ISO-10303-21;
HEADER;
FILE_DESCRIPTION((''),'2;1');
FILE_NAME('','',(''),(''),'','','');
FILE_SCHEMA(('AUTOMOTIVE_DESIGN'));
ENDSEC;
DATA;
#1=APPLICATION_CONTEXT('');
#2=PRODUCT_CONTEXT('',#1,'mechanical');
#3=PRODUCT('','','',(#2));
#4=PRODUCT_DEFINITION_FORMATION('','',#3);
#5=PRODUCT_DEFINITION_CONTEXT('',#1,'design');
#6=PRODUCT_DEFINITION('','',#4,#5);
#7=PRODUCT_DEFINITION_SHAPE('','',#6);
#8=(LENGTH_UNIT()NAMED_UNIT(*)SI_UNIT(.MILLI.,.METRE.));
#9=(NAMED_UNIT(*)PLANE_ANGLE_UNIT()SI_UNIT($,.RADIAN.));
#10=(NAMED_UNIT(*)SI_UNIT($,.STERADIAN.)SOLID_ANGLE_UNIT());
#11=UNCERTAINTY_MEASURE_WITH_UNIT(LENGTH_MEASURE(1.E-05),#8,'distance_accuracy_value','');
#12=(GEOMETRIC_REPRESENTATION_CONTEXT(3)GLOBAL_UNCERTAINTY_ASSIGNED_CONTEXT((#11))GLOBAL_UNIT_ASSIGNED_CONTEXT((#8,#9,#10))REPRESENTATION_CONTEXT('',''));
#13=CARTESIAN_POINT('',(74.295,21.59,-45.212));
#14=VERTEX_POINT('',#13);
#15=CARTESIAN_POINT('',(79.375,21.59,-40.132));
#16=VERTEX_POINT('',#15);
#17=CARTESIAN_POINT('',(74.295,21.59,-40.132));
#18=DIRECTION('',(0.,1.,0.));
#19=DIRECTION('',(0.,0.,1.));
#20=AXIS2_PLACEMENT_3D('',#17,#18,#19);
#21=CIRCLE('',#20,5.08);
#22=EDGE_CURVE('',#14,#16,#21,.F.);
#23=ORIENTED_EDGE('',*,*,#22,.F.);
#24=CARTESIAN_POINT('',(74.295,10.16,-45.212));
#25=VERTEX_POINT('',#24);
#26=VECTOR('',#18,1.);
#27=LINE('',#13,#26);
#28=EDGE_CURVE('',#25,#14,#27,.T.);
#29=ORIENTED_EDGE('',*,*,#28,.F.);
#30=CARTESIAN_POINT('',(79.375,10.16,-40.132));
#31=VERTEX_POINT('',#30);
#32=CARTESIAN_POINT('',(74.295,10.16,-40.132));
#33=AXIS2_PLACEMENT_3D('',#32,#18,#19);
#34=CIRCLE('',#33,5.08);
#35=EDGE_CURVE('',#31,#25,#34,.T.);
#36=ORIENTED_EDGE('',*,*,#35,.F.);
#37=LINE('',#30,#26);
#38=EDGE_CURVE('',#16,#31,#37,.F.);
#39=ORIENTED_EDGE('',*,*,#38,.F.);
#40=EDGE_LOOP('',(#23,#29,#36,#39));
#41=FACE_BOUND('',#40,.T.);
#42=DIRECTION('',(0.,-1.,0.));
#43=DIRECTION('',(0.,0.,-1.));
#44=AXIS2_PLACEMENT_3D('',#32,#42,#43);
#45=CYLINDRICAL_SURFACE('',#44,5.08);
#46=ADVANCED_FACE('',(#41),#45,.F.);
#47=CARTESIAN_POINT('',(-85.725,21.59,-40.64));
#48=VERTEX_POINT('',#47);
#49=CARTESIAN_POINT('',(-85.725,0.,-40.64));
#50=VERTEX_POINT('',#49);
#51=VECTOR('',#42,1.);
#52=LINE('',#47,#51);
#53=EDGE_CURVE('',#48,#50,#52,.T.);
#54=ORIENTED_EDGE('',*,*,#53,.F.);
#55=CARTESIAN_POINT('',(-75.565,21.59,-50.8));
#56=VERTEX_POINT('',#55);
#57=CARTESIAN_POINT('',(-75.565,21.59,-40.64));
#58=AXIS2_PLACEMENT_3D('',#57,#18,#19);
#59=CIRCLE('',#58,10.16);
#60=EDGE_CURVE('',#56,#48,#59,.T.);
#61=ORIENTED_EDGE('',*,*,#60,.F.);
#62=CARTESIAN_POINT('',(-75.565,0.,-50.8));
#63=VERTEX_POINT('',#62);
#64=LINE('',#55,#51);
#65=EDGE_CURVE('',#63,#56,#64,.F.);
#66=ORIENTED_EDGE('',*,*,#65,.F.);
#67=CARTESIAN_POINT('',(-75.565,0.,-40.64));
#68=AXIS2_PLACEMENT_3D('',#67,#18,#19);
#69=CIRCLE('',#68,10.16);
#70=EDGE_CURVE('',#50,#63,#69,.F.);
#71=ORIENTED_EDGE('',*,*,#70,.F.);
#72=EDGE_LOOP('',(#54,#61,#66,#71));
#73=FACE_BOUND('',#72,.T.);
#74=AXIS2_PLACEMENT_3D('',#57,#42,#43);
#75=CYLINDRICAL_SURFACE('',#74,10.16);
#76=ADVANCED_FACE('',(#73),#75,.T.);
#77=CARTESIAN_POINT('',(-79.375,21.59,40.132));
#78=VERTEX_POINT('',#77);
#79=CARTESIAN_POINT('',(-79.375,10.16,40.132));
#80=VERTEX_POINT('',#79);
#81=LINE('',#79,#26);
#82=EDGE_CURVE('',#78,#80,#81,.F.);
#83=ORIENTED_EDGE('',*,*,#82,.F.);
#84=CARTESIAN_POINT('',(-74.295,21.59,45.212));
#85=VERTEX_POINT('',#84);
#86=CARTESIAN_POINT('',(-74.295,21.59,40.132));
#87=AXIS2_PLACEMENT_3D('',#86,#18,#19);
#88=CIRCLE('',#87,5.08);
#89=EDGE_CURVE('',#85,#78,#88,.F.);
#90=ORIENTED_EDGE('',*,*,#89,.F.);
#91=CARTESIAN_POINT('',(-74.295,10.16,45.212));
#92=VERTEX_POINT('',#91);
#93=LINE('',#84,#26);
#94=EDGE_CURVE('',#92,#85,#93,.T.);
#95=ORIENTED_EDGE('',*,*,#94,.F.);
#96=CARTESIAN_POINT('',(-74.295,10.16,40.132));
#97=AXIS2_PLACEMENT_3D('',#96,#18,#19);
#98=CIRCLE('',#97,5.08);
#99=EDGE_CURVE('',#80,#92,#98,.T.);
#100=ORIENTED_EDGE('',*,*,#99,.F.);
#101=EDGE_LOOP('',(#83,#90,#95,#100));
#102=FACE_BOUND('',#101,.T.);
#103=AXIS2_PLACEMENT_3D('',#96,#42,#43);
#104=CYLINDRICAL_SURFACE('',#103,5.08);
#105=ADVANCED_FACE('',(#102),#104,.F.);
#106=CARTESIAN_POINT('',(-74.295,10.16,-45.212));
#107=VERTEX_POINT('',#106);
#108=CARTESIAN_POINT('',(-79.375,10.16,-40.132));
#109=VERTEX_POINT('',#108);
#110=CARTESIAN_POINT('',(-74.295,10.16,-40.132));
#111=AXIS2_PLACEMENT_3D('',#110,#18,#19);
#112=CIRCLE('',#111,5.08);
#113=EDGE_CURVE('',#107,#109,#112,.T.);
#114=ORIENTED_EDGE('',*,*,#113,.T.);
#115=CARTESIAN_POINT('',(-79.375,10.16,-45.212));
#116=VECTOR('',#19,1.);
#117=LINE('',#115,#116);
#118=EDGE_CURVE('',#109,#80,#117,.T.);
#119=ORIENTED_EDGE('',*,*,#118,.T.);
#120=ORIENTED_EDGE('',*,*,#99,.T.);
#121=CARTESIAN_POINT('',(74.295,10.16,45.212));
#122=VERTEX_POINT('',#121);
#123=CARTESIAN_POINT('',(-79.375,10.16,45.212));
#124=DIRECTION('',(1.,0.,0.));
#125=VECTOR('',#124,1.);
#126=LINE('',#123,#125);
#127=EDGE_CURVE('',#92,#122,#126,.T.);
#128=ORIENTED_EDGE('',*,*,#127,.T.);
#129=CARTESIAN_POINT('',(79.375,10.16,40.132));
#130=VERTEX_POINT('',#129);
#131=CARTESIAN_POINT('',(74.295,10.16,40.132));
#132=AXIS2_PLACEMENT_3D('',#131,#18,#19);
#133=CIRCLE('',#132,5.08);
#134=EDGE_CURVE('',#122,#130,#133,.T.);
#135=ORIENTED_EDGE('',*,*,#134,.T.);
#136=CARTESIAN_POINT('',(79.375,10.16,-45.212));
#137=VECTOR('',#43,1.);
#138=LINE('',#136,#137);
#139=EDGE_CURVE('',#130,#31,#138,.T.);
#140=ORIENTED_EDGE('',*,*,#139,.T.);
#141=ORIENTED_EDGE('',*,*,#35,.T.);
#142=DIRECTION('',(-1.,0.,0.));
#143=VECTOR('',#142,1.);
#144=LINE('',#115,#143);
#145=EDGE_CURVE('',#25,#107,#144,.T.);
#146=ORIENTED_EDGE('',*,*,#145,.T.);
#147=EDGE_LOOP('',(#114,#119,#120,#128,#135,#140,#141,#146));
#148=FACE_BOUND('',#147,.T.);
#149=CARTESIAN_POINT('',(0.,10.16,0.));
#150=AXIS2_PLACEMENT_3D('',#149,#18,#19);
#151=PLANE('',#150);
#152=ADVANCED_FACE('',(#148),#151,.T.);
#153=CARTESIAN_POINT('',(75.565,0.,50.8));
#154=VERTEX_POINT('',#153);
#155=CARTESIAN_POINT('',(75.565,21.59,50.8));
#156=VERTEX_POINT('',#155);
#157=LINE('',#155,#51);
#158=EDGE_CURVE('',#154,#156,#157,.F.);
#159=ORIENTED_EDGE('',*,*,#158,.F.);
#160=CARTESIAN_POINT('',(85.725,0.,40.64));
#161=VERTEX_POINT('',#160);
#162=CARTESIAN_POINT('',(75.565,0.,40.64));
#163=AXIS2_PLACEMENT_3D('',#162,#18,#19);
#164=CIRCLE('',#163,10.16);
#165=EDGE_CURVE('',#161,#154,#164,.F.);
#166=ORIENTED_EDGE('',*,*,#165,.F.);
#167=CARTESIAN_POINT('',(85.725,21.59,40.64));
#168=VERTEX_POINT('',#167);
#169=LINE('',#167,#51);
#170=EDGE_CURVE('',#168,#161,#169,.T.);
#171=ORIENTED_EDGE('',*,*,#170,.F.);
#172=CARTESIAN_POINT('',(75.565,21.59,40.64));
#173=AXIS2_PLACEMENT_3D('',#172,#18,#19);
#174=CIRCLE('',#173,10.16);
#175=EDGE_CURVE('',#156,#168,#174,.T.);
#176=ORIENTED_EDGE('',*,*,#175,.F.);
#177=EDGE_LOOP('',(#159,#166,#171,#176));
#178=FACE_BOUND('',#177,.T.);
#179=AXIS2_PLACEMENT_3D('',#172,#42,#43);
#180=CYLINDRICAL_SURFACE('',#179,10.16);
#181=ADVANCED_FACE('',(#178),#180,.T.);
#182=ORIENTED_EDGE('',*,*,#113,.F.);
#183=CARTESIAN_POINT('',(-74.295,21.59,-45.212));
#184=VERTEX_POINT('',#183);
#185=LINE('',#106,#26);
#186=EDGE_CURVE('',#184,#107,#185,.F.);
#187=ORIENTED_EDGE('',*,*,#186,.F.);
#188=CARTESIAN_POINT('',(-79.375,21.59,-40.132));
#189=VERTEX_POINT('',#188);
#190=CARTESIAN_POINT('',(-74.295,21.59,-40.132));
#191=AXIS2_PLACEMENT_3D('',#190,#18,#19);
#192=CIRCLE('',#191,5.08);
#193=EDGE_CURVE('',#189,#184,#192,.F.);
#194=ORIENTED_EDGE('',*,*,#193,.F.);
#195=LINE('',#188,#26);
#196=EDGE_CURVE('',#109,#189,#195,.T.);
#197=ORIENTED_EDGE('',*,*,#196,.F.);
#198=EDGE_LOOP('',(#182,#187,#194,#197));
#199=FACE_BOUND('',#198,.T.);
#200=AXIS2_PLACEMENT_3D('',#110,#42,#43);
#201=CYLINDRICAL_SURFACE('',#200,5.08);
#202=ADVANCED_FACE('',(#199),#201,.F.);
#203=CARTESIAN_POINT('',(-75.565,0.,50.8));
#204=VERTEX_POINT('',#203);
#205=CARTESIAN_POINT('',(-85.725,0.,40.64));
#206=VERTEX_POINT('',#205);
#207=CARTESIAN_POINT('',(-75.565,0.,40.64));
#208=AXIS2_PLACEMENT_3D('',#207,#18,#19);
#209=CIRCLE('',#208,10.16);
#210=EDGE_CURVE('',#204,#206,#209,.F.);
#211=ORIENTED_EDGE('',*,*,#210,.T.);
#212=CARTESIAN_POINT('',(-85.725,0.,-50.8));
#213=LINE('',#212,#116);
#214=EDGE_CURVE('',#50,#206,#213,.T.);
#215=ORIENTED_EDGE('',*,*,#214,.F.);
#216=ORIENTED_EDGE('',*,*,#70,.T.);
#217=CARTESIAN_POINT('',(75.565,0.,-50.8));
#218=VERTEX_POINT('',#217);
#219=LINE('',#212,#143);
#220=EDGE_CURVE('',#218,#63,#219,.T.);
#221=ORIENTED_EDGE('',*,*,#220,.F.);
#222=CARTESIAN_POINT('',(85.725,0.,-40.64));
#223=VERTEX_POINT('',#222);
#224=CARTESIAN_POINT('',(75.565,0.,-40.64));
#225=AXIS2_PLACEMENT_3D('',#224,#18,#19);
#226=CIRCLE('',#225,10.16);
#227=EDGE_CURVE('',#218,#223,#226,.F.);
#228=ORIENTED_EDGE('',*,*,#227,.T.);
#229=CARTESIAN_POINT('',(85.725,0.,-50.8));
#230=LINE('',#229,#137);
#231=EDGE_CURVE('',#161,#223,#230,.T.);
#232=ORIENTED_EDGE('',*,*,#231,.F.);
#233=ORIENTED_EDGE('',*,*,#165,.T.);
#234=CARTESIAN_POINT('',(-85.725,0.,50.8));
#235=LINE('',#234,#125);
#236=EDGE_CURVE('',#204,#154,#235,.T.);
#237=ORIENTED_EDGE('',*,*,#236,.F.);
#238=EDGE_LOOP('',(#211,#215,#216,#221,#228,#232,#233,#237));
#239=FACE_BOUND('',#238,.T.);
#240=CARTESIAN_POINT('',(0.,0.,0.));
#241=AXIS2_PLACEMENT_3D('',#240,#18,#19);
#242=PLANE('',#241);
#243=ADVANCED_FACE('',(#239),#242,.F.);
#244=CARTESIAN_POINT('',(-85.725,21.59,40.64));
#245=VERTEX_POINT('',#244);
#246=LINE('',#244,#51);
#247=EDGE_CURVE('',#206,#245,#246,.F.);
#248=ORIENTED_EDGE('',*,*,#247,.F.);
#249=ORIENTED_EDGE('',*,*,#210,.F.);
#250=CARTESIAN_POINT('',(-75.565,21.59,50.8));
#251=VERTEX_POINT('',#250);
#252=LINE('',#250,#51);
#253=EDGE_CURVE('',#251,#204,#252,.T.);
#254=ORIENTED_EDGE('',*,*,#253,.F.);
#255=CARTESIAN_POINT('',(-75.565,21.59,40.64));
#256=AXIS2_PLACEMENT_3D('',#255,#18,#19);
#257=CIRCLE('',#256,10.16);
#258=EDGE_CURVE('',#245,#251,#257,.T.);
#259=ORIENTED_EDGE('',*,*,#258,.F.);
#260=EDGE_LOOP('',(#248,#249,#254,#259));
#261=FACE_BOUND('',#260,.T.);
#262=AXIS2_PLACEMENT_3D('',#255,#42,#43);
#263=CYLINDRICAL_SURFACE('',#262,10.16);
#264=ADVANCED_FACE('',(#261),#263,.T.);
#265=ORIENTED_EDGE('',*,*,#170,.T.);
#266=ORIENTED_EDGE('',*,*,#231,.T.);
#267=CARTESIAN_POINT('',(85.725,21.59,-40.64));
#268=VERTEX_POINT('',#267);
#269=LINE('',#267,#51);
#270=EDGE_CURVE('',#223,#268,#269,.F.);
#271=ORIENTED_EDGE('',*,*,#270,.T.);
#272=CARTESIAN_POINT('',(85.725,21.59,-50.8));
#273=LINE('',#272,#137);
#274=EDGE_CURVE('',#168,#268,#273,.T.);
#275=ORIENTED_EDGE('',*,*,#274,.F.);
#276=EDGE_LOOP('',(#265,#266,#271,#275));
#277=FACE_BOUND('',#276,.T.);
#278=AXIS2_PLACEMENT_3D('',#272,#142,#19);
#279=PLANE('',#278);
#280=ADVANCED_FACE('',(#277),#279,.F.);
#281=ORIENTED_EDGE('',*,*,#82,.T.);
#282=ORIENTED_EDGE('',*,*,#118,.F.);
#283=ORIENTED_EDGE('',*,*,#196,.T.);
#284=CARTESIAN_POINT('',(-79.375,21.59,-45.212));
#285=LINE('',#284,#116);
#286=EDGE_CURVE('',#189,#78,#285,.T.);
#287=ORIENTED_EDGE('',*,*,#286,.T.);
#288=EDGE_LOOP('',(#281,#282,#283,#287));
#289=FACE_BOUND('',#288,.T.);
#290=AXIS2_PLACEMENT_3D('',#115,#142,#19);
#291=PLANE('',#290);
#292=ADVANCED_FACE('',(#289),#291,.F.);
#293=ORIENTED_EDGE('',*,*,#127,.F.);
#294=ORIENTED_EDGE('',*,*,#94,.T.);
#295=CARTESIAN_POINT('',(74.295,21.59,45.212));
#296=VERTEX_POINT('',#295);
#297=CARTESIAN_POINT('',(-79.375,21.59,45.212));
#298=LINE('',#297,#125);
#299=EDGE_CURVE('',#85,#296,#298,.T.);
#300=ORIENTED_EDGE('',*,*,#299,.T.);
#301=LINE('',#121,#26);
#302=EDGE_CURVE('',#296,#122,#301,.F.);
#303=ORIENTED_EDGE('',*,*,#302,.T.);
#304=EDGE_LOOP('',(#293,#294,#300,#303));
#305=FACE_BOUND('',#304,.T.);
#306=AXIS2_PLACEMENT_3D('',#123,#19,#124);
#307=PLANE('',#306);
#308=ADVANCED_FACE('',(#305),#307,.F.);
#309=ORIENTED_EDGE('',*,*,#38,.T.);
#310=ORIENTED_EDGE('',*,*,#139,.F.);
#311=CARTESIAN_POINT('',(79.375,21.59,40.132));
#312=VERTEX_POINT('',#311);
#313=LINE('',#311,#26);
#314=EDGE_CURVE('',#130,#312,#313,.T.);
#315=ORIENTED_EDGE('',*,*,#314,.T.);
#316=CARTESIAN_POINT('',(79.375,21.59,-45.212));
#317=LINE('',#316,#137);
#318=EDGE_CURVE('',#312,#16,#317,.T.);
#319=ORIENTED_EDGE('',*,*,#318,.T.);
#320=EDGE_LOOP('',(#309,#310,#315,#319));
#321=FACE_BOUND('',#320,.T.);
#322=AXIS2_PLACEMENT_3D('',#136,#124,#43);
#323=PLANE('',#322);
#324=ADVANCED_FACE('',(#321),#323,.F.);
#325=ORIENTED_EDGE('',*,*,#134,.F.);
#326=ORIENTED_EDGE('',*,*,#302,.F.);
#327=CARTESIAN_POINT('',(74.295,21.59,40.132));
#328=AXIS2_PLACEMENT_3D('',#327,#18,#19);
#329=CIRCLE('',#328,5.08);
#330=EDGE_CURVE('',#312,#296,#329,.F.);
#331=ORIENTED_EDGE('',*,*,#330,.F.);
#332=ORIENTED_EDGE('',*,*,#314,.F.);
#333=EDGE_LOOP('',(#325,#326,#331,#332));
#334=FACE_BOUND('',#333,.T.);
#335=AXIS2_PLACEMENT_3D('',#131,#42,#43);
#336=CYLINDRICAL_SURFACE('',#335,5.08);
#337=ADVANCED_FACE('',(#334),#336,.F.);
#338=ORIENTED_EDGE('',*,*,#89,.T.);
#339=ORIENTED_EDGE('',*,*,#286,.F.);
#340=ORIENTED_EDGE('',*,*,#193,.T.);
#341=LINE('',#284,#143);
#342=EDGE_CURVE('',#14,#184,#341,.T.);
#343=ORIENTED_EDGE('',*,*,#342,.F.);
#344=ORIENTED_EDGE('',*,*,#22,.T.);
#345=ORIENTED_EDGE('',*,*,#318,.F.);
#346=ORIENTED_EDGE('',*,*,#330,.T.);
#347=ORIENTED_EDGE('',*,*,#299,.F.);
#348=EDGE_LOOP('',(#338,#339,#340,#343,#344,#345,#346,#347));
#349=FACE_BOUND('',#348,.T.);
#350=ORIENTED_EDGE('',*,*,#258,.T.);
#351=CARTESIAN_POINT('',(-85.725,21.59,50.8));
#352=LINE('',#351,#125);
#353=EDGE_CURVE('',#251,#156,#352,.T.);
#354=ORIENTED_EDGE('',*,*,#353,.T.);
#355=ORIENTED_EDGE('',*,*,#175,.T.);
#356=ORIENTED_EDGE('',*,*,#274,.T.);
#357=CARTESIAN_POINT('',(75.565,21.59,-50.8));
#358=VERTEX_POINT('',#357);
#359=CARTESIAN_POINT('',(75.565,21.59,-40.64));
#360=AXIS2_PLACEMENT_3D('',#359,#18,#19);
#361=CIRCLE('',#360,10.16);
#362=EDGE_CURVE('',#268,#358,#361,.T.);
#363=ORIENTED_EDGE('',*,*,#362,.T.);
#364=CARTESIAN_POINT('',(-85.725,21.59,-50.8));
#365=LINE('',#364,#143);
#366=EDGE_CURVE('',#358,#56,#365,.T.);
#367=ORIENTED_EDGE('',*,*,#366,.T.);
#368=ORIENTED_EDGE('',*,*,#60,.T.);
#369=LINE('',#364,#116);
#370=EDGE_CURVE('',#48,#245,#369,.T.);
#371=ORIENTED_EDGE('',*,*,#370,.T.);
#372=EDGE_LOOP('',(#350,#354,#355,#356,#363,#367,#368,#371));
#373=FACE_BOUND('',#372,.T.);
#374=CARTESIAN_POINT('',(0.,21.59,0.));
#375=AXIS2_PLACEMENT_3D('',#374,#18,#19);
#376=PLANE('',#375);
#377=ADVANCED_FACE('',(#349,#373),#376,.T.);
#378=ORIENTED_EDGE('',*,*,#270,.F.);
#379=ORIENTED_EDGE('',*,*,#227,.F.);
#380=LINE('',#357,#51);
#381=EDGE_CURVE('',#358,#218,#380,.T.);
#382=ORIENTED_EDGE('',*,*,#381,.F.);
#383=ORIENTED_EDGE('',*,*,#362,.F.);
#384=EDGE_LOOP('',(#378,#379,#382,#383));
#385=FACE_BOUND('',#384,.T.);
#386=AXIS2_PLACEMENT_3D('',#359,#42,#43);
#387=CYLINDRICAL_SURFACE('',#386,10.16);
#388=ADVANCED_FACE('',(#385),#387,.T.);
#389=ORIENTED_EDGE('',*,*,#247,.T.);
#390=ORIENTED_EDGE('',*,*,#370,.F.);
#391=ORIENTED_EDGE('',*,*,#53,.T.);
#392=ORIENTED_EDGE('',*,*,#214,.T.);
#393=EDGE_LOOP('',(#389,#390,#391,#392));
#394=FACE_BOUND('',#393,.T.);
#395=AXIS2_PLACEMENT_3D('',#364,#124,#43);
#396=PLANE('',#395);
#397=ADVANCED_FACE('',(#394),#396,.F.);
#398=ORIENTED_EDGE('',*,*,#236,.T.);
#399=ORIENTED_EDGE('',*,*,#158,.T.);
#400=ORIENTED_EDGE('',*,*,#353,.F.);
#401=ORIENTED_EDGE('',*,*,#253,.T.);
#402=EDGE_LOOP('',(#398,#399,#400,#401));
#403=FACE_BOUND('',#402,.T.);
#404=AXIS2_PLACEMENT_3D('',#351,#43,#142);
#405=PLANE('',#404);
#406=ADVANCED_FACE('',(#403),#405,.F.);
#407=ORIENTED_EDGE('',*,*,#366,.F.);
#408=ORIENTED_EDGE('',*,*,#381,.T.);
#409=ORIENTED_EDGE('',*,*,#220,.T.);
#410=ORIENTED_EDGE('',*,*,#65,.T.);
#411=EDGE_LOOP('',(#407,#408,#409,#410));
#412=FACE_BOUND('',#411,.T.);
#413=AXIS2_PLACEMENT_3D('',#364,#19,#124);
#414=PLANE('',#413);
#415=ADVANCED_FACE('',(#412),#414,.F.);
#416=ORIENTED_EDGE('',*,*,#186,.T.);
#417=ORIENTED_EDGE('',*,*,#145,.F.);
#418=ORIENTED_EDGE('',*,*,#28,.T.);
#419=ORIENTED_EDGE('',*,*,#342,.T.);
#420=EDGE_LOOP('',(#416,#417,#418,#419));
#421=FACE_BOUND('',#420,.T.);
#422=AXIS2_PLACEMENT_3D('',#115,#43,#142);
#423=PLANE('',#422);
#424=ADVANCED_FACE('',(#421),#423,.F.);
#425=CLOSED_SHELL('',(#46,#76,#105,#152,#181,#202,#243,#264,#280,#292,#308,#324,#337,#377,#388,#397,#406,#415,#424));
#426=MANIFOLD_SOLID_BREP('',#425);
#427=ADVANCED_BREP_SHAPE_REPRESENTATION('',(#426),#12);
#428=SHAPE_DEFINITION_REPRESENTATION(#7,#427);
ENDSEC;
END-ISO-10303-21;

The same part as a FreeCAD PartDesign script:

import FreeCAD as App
import Part
import Sketcher
Q = App.Units.Quantity


def edges_at(feature, points):
    """Names of the edges that pass closest to the given points."""
    edges = feature.Shape.Edges
    near = lambda p: min(range(len(edges)), key=lambda i: edges[i].distToShape(Part.Vertex(*p))[0])
    return sorted({f"Edge{near(p) + 1}" for p in points})

doc = App.newDocument("Part")
body = doc.addObject("PartDesign::Body", "Body")

# Sketch on XZ plane
sketch1 = body.newObject("Sketcher::SketchObject", "Sketch")
sketch1.AttachmentSupport = (doc.getObject("XZ_Plane"), [""])
sketch1.MapMode = "FlatFace"
sketch1.addGeometry(Part.LineSegment(App.Vector(-85.725, -50.8, 0), App.Vector(-85.725, 50.8, 0)), False)
sketch1.addGeometry(Part.LineSegment(App.Vector(-85.725, 50.8, 0), App.Vector(85.725, 50.8, 0)), False)
sketch1.addGeometry(Part.LineSegment(App.Vector(85.725, 50.8, 0), App.Vector(85.725, -50.8, 0)), False)
sketch1.addGeometry(Part.LineSegment(App.Vector(85.725, -50.8, 0), App.Vector(-85.725, -50.8, 0)), False)
sketch1.addConstraint(Sketcher.Constraint("Coincident", 0, 2, 1, 1))
sketch1.addConstraint(Sketcher.Constraint("Coincident", 1, 2, 2, 1))
sketch1.addConstraint(Sketcher.Constraint("Coincident", 2, 2, 3, 1))
sketch1.addConstraint(Sketcher.Constraint("Coincident", 3, 2, 0, 1))
sketch1.addConstraint(Sketcher.Constraint("Vertical", 0))
sketch1.addConstraint(Sketcher.Constraint("Horizontal", 1))
sketch1.addConstraint(Sketcher.Constraint("Vertical", 2))
sketch1.addConstraint(Sketcher.Constraint("Horizontal", 3))
sketch1.addConstraint(Sketcher.Constraint("Symmetric", 0, 2, 2, 2, -1, 1))
sketch1.addConstraint(Sketcher.Constraint("DistanceY", 0, 1, 0, 2, Q("4 in")))
sketch1.addConstraint(Sketcher.Constraint("DistanceX", 1, 1, 1, 2, Q("6.75 in")))
pad1 = body.newObject("PartDesign::Pad", "Pad")
pad1.Profile = sketch1
pad1.Length = Q("0.85 in")
pad1.Reversed = True

# Sketch on XZ plane
sketch2 = body.newObject("Sketcher::SketchObject", "Sketch001")
sketch2.AttachmentSupport = (doc.getObject("XZ_Plane"), [""])
sketch2.MapMode = "FlatFace"
sketch2.AttachmentOffset = App.Placement(App.Vector(0, 0, -0.85 * 25.4), App.Rotation())
sketch2.addGeometry(Part.LineSegment(App.Vector(-79.375, -45.212, 0), App.Vector(-79.375, 45.212, 0)), False)
sketch2.addGeometry(Part.LineSegment(App.Vector(-79.375, 45.212, 0), App.Vector(79.375, 45.212, 0)), False)
sketch2.addGeometry(Part.LineSegment(App.Vector(79.375, 45.212, 0), App.Vector(79.375, -45.212, 0)), False)
sketch2.addGeometry(Part.LineSegment(App.Vector(79.375, -45.212, 0), App.Vector(-79.375, -45.212, 0)), False)
sketch2.addConstraint(Sketcher.Constraint("Coincident", 0, 2, 1, 1))
sketch2.addConstraint(Sketcher.Constraint("Coincident", 1, 2, 2, 1))
sketch2.addConstraint(Sketcher.Constraint("Coincident", 2, 2, 3, 1))
sketch2.addConstraint(Sketcher.Constraint("Coincident", 3, 2, 0, 1))
sketch2.addConstraint(Sketcher.Constraint("Vertical", 0))
sketch2.addConstraint(Sketcher.Constraint("Horizontal", 1))
sketch2.addConstraint(Sketcher.Constraint("Vertical", 2))
sketch2.addConstraint(Sketcher.Constraint("Horizontal", 3))
sketch2.addConstraint(Sketcher.Constraint("Symmetric", 0, 2, 2, 2, -1, 1))
sketch2.addConstraint(Sketcher.Constraint("DistanceX", 1, 1, 1, 2, Q("6.25 in")))
sketch2.addConstraint(Sketcher.Constraint("DistanceY", 0, 1, 0, 2, Q("3.56 in")))
pocket1 = body.newObject("PartDesign::Pocket", "Pocket")
pocket1.Profile = sketch2
pocket1.Length = Q("0.45 in")
pocket1.Reversed = True
doc.recompute()

fillet = body.newObject("PartDesign::Fillet", "Fillet")
fillet.Base = (pocket1, edges_at(pocket1, [
    (-79.375, 15.875, 45.212),
    (-79.375, 15.875, -45.212),
    (79.375, 15.875, -45.212),
    (79.375, 15.875, 45.212),
]))
fillet.Radius = Q("0.2 in")
doc.recompute()

fillet2 = body.newObject("PartDesign::Fillet", "Fillet001")
fillet2.Base = (fillet, edges_at(fillet, [
    (-85.725, 10.795, -50.8),
    (85.725, 10.795, -50.8),
    (85.725, 10.795, 50.8),
    (-85.725, 10.795, 50.8),
]))
fillet2.Radius = Q("0.4 in")

doc.recompute()
